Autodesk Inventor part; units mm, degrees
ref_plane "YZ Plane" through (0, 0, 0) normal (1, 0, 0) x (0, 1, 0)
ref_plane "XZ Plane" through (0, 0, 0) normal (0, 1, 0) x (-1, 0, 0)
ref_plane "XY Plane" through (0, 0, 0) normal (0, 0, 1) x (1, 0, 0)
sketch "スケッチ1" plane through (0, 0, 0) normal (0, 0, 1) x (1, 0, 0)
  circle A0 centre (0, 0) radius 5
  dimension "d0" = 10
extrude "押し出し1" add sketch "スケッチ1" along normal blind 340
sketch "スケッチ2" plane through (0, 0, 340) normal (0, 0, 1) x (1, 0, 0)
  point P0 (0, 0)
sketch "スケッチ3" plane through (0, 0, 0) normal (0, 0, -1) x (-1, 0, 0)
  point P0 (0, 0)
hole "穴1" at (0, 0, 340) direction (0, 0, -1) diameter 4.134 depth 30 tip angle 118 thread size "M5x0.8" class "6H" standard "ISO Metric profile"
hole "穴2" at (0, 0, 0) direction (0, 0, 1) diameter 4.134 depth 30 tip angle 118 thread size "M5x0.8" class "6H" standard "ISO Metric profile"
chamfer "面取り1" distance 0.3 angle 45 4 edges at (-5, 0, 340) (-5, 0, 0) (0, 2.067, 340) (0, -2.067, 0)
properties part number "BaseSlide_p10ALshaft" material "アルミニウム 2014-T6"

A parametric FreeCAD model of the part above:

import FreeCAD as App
import Part
import Sketcher

V = App.Vector


def edges_at(feature, points):
    """Names of the edges that pass closest to the given points."""
    edges = feature.Shape.Edges
    near = lambda p: min(range(len(edges)), key=lambda i: edges[i].distToShape(Part.Vertex(*p))[0])
    return sorted({f"Edge{near(p) + 1}" for p in points})

doc = App.newDocument("Part")
body = doc.addObject("PartDesign::Body", "Body")

# Sketch on XY plane
sketch1 = body.newObject("Sketcher::SketchObject", "Sketch")
sketch1.AttachmentSupport = (doc.getObject("XY_Plane"), [""])
sketch1.MapMode = "FlatFace"
sketch1.addGeometry(Part.Circle(V(0, 0, 0), V(0, 0, 1), 5), False)
sketch1.addConstraint(Sketcher.Constraint("Coincident", 0, 3, -1, 1))
sketch1.addConstraint(Sketcher.Constraint("Diameter", 0, 10.0))
pad1 = body.newObject("PartDesign::Pad", "Pad")
pad1.Profile = sketch1
pad1.Length = 340

# Sketch on XY plane
sketch2 = body.newObject("Sketcher::SketchObject", "Sketch001")
sketch2.AttachmentSupport = (doc.getObject("XY_Plane"), [""])
sketch2.MapMode = "FlatFace"
sketch2.AttachmentOffset = App.Placement(V(0, 0, 340), App.Rotation())
sketch2.addGeometry(Part.Circle(V(0, 0, 0), V(0, 0, 1), 2.1), False)
sketch2.addConstraint(Sketcher.Constraint("Coincident", 0, 3, -1, 1))
sketch2.addConstraint(Sketcher.Constraint("Diameter", 0, 4.134))
doc.recompute()
hole = body.newObject("PartDesign::Hole", "Hole")
hole.Profile = sketch2
hole.ThreadType = "None"
hole.Diameter = 4.134
hole.DepthType = "Dimension"
hole.Depth = 30
hole.DrillPoint = "Angled"
hole.DrillPointAngle = 118

# Sketch on XY plane
sketch3 = body.newObject("Sketcher::SketchObject", "Sketch002")
sketch3.AttachmentSupport = (doc.getObject("XY_Plane"), [""])
sketch3.MapMode = "FlatFace"
sketch3.addGeometry(Part.Circle(V(0, 0, 0), V(0, 0, 1), 2.1), False)
sketch3.addConstraint(Sketcher.Constraint("Coincident", 0, 3, -1, 1))
sketch3.addConstraint(Sketcher.Constraint("Diameter", 0, 4.134))
doc.recompute()
hole2 = body.newObject("PartDesign::Hole", "Hole001")
hole2.Profile = sketch3
hole2.ThreadType = "None"
hole2.Diameter = 4.134
hole2.DepthType = "Dimension"
hole2.Depth = 30
hole2.DrillPoint = "Angled"
hole2.DrillPointAngle = 118
hole2.Reversed = True
doc.recompute()

chamfer = body.newObject("PartDesign::Chamfer", "Chamfer")
chamfer.Base = (hole2, edges_at(hole2, [
    (-5, 0, 340),
    (-5, 0, 0),
    (0, 2.067, 340),
    (0, -2.067, 0),
]))
chamfer.Size = 0.3

doc.recompute()
